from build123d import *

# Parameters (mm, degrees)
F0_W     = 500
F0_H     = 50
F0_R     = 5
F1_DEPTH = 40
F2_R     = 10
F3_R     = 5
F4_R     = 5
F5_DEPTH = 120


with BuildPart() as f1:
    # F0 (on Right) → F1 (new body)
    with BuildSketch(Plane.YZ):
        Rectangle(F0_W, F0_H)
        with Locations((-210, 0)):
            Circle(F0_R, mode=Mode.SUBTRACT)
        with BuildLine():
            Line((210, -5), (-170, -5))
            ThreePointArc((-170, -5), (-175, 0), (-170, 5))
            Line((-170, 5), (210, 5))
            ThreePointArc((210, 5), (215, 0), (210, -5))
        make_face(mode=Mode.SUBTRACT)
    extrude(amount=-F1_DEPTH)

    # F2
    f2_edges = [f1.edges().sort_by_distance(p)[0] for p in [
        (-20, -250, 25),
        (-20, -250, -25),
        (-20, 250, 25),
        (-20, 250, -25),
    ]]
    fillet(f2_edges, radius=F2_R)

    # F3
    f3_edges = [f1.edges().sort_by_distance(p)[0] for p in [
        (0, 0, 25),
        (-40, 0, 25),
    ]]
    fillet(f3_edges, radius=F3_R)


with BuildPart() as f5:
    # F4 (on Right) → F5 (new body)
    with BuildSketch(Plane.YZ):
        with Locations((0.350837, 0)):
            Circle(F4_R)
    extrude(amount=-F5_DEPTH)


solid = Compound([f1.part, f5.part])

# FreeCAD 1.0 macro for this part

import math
import FreeCAD as App
import Part
import Sketcher
from FreeCAD import Vector


def edges_at(feature, points):
    """Names of the edges that pass closest to the given points."""
    edges = feature.Shape.Edges
    near = lambda p: min(range(len(edges)), key=lambda i: edges[i].distToShape(Part.Vertex(*p))[0])
    return sorted({f"Edge{near(p) + 1}" for p in points})

doc = App.newDocument("Part")
body = doc.addObject("PartDesign::Body", "Body")

sketch1 = body.newObject("Sketcher::SketchObject", "Sketch")
sketch1.AttachmentSupport = (doc.getObject("YZ_Plane"), [""])
sketch1.MapMode = "FlatFace"
sketch1.addGeometry([
    Part.LineSegment(Vector(-250, 25, 0), Vector(-250, -25, 0)),
    Part.LineSegment(Vector(-250, -25, 0), Vector(250, -25, 0)),
    Part.LineSegment(Vector(250, -25, 0), Vector(250, 25, 0)),
    Part.LineSegment(Vector(250, 25, 0), Vector(-250, 25, 0)),
    Part.Circle(Vector(-210, 0, 0), Vector(0, 0, 1), 5),
    Part.ArcOfCircle(Part.Circle(Vector(210, 0, 0), Vector(0, 0, 1), 5), math.radians(-90), math.radians(90)),
    Part.LineSegment(Vector(210, -5, 0), Vector(-170, -5, 0)),
    Part.ArcOfCircle(Part.Circle(Vector(-170, 0, 0), Vector(0, 0, 1), 5), math.radians(90), math.radians(270)),
    Part.LineSegment(Vector(-170, 5, 0), Vector(210, 5, 0)),
], False)
sketch1.addConstraint([
    Sketcher.Constraint("Coincident", 0, 2, 1, 1),
    Sketcher.Constraint("Coincident", 1, 2, 2, 1),
    Sketcher.Constraint("Coincident", 2, 2, 3, 1),
    Sketcher.Constraint("Coincident", 3, 2, 0, 1),
    Sketcher.Constraint("Tangent", 5, 1, 6, 1),
    Sketcher.Constraint("Tangent", 6, 2, 7, 2),
    Sketcher.Constraint("Tangent", 7, 1, 8, 1),
    Sketcher.Constraint("Tangent", 8, 2, 5, 2),
    Sketcher.Constraint("Vertical", 0),
    Sketcher.Constraint("Horizontal", 1),
    Sketcher.Constraint("Vertical", 2),
    Sketcher.Constraint("Horizontal", 3),
    Sketcher.Constraint("Horizontal", 6),
    Sketcher.Constraint("Horizontal", 8),
    Sketcher.Constraint("Equal", 4, 5),
    Sketcher.Constraint("Symmetric", 4, 3, 5, 3, -1, 1),
    Sketcher.Constraint("Symmetric", 0, 2, 2, 2, -1, 1),
    Sketcher.Constraint("PointOnObject", 4, 3, -1),
    Sketcher.Constraint("Diameter", 4, 10.0),
    Sketcher.Constraint("DistanceX", 1, 1, 1, 2, 500.0),
    Sketcher.Constraint("DistanceX", 6, 2, 6, 1, 380.0),
    Sketcher.Constraint("DistanceY", 0, 2, 0, 1, 50.0),
    Sketcher.Constraint("DistanceX", 4, 3, -1, 1, 210.0),
])
pad1 = body.newObject("PartDesign::Pad", "Pad")
pad1.Profile = sketch1
pad1.Length = 40
pad1.Reversed = True
doc.recompute()

fillet = body.newObject("PartDesign::Fillet", "Fillet")
fillet.Base = (pad1, edges_at(pad1, [
    (-20, -250, 25),
    (-20, -250, -25),
    (-20, 250, 25),
    (-20, 250, -25),
]))
fillet.Radius = 10
doc.recompute()

fillet2 = body.newObject("PartDesign::Fillet", "Fillet001")
fillet2.Base = (fillet, edges_at(fillet, [(0, 0, 25), (-40, 0, 25)]))
fillet2.Radius = 5
body2 = doc.addObject("PartDesign::Body", "Body001")

sketch2 = body2.newObject("Sketcher::SketchObject", "Sketch001")
sketch2.AttachmentSupport = (doc.getObject("YZ_Plane001"), [""])
sketch2.MapMode = "FlatFace"
sketch2.addGeometry(Part.Circle(Vector(0, 0, 0), Vector(0, 0, 1), 5), False)
sketch2.addConstraint([
    Sketcher.Constraint("PointOnObject", 0, 3, -1),
    Sketcher.Constraint("Diameter", 0, 10.0),
    Sketcher.Constraint("DistanceX", -1, 1, 0, 3, 0.350837),
])
pad2 = body2.newObject("PartDesign::Pad", "Pad001")
pad2.Profile = sketch2
pad2.Length = 120
pad2.Reversed = True

doc.recompute()
